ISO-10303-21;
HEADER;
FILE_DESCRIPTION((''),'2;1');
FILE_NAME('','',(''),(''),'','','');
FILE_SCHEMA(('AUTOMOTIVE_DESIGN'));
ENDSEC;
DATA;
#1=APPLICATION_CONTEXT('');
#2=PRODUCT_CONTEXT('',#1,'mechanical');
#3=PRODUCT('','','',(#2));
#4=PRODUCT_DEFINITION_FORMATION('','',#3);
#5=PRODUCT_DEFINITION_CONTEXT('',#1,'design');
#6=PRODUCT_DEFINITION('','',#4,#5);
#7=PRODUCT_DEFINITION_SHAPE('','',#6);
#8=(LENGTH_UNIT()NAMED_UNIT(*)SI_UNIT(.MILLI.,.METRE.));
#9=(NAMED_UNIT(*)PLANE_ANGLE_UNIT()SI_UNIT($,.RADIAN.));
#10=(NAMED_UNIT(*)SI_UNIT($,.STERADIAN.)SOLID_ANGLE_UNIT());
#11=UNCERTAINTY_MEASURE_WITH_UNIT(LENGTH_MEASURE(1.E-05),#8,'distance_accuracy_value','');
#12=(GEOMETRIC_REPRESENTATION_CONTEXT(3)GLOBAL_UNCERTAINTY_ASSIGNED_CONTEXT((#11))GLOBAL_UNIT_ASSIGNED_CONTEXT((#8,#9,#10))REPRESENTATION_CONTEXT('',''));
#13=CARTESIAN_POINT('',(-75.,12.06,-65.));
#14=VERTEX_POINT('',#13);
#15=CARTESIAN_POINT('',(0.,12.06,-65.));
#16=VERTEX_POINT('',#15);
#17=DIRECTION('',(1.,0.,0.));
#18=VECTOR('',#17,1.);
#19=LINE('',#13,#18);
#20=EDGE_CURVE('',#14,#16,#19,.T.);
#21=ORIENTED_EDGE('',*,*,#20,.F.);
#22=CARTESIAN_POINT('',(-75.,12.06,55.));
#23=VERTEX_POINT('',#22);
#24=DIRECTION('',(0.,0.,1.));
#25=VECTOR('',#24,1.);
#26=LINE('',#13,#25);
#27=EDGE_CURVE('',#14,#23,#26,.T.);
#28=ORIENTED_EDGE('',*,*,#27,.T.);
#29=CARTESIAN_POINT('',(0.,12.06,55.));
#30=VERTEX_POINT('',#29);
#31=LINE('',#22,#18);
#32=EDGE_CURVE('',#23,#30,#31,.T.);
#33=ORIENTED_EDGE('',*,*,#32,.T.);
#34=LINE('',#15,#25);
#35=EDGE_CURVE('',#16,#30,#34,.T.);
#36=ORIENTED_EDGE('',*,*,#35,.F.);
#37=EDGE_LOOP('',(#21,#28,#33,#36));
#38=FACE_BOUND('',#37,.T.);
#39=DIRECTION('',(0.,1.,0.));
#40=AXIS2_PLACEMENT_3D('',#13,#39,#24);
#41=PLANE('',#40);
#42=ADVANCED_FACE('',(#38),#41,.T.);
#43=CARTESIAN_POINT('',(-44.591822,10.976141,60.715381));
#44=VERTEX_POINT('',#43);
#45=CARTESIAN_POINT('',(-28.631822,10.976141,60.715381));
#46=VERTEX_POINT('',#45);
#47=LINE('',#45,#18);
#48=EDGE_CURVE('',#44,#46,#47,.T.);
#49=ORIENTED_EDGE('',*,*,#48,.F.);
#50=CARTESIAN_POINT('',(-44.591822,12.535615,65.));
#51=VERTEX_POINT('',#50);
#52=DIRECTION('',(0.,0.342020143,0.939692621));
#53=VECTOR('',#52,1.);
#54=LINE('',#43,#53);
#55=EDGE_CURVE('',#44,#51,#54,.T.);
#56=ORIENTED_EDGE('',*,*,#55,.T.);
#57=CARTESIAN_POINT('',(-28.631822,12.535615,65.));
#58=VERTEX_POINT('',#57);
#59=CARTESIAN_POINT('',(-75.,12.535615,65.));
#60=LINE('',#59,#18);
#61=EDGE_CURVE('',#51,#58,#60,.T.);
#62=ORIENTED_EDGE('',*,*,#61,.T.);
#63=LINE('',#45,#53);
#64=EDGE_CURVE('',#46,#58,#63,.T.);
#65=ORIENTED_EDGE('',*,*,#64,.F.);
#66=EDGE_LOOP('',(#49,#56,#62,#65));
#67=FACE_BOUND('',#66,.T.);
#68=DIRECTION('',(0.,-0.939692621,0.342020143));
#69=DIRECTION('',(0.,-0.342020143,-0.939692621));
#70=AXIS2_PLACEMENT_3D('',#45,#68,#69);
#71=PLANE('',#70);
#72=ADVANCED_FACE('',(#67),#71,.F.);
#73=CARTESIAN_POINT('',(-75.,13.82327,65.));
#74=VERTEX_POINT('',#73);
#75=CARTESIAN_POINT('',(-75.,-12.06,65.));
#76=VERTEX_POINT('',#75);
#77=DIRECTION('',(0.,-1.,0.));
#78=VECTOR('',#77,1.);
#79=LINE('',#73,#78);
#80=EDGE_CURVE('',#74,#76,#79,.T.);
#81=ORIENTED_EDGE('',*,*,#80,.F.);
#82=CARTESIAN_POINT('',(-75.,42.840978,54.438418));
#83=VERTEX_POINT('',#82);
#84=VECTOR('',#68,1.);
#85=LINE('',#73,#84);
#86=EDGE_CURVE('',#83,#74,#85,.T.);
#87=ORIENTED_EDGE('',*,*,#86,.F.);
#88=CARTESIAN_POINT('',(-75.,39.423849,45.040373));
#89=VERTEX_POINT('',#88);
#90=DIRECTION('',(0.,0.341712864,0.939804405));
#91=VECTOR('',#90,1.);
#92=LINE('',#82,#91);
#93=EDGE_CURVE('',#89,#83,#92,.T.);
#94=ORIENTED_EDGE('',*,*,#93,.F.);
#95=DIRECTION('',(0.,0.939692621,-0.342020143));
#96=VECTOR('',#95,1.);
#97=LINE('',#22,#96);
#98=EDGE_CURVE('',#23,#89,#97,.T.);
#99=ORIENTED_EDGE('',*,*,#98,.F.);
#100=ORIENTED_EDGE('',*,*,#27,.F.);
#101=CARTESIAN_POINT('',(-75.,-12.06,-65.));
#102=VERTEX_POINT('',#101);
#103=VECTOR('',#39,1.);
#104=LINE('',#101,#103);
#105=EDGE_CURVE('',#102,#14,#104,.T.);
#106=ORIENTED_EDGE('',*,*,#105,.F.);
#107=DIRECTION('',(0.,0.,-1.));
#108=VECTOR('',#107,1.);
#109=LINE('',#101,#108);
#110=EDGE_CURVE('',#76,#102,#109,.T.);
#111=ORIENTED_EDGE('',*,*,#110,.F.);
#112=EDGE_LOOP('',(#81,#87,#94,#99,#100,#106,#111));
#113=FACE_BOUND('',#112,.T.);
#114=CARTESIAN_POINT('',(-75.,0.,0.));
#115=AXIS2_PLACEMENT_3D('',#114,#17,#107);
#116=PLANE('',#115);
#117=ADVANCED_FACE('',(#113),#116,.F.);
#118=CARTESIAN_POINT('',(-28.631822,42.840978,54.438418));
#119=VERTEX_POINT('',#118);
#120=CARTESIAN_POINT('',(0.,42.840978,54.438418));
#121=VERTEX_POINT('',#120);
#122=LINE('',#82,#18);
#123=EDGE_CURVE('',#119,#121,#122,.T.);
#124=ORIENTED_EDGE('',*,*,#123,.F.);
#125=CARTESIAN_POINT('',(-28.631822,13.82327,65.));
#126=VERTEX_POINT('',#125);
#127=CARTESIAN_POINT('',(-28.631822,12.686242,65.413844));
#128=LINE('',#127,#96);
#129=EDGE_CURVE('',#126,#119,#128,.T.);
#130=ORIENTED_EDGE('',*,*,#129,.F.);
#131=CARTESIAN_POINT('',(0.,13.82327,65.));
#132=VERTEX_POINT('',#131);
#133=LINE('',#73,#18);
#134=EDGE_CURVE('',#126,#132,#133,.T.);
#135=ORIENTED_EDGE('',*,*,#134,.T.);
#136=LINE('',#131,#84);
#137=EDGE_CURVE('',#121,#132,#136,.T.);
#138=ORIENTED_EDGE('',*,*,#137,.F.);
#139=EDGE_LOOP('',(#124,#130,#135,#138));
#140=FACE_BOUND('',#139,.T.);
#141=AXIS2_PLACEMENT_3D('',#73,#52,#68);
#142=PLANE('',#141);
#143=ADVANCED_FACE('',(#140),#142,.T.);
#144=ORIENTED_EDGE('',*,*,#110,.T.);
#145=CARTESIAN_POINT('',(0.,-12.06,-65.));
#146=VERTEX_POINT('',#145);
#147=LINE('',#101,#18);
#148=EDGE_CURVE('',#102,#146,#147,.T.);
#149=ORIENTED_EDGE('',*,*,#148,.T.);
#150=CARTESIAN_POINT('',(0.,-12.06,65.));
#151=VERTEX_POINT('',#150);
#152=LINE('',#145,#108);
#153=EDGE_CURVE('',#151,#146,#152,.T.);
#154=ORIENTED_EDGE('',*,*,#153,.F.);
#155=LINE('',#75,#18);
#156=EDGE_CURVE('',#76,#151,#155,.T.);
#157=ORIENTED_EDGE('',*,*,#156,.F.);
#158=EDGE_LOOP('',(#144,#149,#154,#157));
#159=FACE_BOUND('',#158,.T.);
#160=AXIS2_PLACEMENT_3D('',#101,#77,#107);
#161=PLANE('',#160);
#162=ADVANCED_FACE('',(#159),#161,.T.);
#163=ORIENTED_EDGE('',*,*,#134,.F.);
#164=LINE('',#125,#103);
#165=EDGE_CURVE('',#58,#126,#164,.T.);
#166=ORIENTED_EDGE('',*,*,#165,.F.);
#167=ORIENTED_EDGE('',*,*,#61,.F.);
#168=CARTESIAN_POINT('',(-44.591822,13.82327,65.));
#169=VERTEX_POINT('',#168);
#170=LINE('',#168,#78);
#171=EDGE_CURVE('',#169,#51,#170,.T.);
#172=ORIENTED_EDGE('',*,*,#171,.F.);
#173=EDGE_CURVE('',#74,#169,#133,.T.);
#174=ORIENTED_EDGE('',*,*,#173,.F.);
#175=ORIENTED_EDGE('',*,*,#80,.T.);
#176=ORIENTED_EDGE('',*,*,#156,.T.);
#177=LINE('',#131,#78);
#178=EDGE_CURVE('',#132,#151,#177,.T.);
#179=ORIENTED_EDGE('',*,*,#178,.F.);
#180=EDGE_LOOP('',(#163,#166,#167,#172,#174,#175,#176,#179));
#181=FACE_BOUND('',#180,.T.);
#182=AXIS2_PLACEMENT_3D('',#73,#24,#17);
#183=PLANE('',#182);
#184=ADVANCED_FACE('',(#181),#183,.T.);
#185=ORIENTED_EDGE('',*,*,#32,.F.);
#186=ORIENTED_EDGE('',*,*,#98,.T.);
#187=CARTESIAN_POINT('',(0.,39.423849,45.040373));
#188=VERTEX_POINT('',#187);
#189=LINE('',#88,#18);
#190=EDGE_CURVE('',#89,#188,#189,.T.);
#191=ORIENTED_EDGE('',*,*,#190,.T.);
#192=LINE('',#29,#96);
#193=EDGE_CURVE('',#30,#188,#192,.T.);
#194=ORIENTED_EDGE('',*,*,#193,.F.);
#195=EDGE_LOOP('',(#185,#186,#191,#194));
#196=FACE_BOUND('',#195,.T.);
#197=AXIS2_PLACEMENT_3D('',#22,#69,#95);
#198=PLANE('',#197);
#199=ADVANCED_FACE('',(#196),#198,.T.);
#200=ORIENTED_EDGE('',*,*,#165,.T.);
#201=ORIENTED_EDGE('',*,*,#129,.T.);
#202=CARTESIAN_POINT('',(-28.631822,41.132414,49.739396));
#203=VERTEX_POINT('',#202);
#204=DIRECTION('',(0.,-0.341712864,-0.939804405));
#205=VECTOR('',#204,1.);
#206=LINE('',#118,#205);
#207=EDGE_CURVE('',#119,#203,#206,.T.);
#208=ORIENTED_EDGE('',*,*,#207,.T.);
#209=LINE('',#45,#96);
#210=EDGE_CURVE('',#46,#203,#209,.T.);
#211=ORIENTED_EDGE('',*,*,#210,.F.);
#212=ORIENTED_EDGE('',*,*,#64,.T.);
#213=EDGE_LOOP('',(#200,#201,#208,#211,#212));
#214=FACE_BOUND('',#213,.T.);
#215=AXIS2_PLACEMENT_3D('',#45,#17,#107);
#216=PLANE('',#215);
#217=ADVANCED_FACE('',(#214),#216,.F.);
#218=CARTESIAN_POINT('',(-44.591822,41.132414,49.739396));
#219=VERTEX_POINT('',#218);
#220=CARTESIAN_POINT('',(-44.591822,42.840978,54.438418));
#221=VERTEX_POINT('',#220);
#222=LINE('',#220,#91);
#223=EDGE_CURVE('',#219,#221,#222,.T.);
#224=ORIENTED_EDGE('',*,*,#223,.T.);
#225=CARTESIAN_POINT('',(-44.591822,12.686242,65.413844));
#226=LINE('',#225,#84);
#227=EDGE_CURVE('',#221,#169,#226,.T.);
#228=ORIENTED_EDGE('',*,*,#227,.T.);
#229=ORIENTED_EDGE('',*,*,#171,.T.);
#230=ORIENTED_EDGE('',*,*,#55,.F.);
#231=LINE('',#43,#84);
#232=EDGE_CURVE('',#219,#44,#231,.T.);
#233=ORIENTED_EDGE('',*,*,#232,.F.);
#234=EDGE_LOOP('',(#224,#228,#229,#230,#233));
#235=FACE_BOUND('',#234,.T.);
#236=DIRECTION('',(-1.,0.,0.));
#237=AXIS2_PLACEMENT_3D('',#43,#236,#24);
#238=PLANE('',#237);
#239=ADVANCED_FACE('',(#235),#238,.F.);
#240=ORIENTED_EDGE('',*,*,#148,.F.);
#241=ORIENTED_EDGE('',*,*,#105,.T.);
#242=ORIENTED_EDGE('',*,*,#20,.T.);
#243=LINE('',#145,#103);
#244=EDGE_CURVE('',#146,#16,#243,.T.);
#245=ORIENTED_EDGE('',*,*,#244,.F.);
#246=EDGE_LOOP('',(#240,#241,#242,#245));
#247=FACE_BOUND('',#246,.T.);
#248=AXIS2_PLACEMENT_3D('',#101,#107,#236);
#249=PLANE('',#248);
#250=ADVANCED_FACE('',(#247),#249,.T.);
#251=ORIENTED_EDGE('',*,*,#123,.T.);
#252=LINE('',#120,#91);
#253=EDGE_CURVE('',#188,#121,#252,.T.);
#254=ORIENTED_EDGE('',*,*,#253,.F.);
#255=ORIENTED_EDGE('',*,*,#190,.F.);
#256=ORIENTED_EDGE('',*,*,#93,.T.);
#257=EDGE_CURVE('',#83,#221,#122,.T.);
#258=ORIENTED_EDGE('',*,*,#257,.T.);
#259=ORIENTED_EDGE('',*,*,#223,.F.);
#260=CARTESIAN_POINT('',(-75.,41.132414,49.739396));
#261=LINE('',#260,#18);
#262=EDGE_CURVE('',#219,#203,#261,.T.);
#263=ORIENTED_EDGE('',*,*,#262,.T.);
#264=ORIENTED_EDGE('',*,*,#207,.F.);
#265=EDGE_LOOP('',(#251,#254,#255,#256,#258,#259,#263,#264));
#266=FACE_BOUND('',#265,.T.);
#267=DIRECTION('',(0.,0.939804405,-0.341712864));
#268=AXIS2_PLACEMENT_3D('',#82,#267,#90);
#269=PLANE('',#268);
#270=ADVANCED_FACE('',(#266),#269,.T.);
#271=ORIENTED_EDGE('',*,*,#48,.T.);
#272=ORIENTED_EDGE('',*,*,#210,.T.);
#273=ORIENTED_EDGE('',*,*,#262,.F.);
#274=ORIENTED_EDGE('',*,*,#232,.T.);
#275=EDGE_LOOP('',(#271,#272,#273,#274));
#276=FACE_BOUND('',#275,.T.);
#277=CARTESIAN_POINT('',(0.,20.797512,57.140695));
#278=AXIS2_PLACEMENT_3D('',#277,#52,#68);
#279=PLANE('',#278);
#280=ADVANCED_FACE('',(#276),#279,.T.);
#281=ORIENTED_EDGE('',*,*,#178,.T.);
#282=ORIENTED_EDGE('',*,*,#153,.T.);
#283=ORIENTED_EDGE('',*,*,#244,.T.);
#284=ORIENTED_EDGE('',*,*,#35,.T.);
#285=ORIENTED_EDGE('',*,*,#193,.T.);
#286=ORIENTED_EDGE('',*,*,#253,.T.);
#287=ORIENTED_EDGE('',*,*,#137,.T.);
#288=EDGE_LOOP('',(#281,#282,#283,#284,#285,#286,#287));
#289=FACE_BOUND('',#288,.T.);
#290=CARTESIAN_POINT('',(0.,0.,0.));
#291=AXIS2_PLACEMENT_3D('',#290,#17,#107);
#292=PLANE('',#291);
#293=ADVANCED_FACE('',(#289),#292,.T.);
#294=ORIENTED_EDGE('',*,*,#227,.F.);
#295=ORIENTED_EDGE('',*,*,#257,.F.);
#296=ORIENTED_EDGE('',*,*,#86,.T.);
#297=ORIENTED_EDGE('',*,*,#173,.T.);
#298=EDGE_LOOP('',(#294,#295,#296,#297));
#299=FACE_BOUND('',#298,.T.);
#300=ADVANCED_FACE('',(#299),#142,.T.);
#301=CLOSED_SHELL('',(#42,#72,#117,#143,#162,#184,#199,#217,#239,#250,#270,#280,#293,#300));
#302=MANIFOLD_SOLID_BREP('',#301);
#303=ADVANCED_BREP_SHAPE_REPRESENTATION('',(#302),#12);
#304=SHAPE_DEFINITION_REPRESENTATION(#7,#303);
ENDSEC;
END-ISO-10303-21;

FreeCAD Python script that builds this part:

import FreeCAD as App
import Part
import Sketcher

V = App.Vector
Q = App.Units.Quantity


def add_polygon(sketch, points):
    """Adds a closed chain of lines whose ends are joined by coincident constraints."""
    first, n = sketch.GeometryCount, len(points)
    for a, b in zip(points, points[1:] + points[:1]):
        sketch.addGeometry(Part.LineSegment(App.Vector(*a, 0), App.Vector(*b, 0)), False)
    for i in range(n):
        sketch.addConstraint(Sketcher.Constraint("Coincident", first + i, 2, first + (i + 1) % n, 1))

doc = App.newDocument("Part")
body = doc.addObject("PartDesign::Body", "Body")

# Sketch on YZ plane
sketch1 = body.newObject("Sketcher::SketchObject", "Sketch")
sketch1.AttachmentSupport = (doc.getObject("YZ_Plane"), [""])
sketch1.MapMode = "FlatFace"
add_polygon(sketch1, [(-12.06, 65), (-12.06, -65), (12.06, -65), (12.06, 55), (39.423849, 45.040373), (42.840978, 54.438418), (13.82327, 65)])  # lines 0-6
sketch1.addConstraint([
    Sketcher.Constraint("Vertical", 0),
    Sketcher.Constraint("Horizontal", 1),
    Sketcher.Constraint("Vertical", 2),
    Sketcher.Constraint("Horizontal", 6),
    Sketcher.Constraint("Symmetric", 1, 2, 6, 2, -1, 1),
    Sketcher.Constraint("Parallel", 3, 5),
    Sketcher.Constraint("DistanceY", 0, 2, 0, 1, 130.0),
    Sketcher.Constraint("DistanceY", 2, 1, 2, 2, 120.0),
    Sketcher.Constraint("Angle", 3, Q("-20 deg")),
    Sketcher.Constraint("Distance", 4, 10.000001),
    Sketcher.Constraint("DistanceX", 1, 1, 1, 2, 24.12),
    Sketcher.Constraint("Distance", 3, 29.12),
    Sketcher.Constraint("Distance", 5, 30.88),
])
pad1 = body.newObject("PartDesign::Pad", "Pad")
pad1.Profile = sketch1
pad1.Length = 75
pad1.Reversed = True

# Sketch on an angled plane
sketch2 = body.newObject("Sketcher::SketchObject", "Sketch001")
sketch2.Placement = App.Placement(V(0, 22.507613, 61.839158), App.Rotation(V(1, 0, 0), V(0, 0.939692621, -0.342020143), V(0, 0.342020143, 0.939692621), "ZXY"))
add_polygon(sketch2, [(-44.591822, 29.548315), (-44.591822, -10.451685), (-28.631822, -10.451685), (-28.631822, 29.548315)])  # lines 0-3
sketch2.addConstraint([
    Sketcher.Constraint("Vertical", 0),
    Sketcher.Constraint("Horizontal", 1),
    Sketcher.Constraint("Vertical", 2),
    Sketcher.Constraint("Horizontal", 3),
    Sketcher.Constraint("DistanceY", 0, 2, 0, 1, 40.0),
    Sketcher.Constraint("DistanceX", 1, 1, 1, 2, 15.96),
    Sketcher.Constraint("DistanceX", 0, 2, -1, 1, 44.591822),
    Sketcher.Constraint("DistanceY", 0, 2, -1, 1, 10.451685),
])
pocket1 = body.newObject("PartDesign::Pocket", "Pocket")
pocket1.Profile = sketch2
pocket1.Length = 5

doc.recompute()
